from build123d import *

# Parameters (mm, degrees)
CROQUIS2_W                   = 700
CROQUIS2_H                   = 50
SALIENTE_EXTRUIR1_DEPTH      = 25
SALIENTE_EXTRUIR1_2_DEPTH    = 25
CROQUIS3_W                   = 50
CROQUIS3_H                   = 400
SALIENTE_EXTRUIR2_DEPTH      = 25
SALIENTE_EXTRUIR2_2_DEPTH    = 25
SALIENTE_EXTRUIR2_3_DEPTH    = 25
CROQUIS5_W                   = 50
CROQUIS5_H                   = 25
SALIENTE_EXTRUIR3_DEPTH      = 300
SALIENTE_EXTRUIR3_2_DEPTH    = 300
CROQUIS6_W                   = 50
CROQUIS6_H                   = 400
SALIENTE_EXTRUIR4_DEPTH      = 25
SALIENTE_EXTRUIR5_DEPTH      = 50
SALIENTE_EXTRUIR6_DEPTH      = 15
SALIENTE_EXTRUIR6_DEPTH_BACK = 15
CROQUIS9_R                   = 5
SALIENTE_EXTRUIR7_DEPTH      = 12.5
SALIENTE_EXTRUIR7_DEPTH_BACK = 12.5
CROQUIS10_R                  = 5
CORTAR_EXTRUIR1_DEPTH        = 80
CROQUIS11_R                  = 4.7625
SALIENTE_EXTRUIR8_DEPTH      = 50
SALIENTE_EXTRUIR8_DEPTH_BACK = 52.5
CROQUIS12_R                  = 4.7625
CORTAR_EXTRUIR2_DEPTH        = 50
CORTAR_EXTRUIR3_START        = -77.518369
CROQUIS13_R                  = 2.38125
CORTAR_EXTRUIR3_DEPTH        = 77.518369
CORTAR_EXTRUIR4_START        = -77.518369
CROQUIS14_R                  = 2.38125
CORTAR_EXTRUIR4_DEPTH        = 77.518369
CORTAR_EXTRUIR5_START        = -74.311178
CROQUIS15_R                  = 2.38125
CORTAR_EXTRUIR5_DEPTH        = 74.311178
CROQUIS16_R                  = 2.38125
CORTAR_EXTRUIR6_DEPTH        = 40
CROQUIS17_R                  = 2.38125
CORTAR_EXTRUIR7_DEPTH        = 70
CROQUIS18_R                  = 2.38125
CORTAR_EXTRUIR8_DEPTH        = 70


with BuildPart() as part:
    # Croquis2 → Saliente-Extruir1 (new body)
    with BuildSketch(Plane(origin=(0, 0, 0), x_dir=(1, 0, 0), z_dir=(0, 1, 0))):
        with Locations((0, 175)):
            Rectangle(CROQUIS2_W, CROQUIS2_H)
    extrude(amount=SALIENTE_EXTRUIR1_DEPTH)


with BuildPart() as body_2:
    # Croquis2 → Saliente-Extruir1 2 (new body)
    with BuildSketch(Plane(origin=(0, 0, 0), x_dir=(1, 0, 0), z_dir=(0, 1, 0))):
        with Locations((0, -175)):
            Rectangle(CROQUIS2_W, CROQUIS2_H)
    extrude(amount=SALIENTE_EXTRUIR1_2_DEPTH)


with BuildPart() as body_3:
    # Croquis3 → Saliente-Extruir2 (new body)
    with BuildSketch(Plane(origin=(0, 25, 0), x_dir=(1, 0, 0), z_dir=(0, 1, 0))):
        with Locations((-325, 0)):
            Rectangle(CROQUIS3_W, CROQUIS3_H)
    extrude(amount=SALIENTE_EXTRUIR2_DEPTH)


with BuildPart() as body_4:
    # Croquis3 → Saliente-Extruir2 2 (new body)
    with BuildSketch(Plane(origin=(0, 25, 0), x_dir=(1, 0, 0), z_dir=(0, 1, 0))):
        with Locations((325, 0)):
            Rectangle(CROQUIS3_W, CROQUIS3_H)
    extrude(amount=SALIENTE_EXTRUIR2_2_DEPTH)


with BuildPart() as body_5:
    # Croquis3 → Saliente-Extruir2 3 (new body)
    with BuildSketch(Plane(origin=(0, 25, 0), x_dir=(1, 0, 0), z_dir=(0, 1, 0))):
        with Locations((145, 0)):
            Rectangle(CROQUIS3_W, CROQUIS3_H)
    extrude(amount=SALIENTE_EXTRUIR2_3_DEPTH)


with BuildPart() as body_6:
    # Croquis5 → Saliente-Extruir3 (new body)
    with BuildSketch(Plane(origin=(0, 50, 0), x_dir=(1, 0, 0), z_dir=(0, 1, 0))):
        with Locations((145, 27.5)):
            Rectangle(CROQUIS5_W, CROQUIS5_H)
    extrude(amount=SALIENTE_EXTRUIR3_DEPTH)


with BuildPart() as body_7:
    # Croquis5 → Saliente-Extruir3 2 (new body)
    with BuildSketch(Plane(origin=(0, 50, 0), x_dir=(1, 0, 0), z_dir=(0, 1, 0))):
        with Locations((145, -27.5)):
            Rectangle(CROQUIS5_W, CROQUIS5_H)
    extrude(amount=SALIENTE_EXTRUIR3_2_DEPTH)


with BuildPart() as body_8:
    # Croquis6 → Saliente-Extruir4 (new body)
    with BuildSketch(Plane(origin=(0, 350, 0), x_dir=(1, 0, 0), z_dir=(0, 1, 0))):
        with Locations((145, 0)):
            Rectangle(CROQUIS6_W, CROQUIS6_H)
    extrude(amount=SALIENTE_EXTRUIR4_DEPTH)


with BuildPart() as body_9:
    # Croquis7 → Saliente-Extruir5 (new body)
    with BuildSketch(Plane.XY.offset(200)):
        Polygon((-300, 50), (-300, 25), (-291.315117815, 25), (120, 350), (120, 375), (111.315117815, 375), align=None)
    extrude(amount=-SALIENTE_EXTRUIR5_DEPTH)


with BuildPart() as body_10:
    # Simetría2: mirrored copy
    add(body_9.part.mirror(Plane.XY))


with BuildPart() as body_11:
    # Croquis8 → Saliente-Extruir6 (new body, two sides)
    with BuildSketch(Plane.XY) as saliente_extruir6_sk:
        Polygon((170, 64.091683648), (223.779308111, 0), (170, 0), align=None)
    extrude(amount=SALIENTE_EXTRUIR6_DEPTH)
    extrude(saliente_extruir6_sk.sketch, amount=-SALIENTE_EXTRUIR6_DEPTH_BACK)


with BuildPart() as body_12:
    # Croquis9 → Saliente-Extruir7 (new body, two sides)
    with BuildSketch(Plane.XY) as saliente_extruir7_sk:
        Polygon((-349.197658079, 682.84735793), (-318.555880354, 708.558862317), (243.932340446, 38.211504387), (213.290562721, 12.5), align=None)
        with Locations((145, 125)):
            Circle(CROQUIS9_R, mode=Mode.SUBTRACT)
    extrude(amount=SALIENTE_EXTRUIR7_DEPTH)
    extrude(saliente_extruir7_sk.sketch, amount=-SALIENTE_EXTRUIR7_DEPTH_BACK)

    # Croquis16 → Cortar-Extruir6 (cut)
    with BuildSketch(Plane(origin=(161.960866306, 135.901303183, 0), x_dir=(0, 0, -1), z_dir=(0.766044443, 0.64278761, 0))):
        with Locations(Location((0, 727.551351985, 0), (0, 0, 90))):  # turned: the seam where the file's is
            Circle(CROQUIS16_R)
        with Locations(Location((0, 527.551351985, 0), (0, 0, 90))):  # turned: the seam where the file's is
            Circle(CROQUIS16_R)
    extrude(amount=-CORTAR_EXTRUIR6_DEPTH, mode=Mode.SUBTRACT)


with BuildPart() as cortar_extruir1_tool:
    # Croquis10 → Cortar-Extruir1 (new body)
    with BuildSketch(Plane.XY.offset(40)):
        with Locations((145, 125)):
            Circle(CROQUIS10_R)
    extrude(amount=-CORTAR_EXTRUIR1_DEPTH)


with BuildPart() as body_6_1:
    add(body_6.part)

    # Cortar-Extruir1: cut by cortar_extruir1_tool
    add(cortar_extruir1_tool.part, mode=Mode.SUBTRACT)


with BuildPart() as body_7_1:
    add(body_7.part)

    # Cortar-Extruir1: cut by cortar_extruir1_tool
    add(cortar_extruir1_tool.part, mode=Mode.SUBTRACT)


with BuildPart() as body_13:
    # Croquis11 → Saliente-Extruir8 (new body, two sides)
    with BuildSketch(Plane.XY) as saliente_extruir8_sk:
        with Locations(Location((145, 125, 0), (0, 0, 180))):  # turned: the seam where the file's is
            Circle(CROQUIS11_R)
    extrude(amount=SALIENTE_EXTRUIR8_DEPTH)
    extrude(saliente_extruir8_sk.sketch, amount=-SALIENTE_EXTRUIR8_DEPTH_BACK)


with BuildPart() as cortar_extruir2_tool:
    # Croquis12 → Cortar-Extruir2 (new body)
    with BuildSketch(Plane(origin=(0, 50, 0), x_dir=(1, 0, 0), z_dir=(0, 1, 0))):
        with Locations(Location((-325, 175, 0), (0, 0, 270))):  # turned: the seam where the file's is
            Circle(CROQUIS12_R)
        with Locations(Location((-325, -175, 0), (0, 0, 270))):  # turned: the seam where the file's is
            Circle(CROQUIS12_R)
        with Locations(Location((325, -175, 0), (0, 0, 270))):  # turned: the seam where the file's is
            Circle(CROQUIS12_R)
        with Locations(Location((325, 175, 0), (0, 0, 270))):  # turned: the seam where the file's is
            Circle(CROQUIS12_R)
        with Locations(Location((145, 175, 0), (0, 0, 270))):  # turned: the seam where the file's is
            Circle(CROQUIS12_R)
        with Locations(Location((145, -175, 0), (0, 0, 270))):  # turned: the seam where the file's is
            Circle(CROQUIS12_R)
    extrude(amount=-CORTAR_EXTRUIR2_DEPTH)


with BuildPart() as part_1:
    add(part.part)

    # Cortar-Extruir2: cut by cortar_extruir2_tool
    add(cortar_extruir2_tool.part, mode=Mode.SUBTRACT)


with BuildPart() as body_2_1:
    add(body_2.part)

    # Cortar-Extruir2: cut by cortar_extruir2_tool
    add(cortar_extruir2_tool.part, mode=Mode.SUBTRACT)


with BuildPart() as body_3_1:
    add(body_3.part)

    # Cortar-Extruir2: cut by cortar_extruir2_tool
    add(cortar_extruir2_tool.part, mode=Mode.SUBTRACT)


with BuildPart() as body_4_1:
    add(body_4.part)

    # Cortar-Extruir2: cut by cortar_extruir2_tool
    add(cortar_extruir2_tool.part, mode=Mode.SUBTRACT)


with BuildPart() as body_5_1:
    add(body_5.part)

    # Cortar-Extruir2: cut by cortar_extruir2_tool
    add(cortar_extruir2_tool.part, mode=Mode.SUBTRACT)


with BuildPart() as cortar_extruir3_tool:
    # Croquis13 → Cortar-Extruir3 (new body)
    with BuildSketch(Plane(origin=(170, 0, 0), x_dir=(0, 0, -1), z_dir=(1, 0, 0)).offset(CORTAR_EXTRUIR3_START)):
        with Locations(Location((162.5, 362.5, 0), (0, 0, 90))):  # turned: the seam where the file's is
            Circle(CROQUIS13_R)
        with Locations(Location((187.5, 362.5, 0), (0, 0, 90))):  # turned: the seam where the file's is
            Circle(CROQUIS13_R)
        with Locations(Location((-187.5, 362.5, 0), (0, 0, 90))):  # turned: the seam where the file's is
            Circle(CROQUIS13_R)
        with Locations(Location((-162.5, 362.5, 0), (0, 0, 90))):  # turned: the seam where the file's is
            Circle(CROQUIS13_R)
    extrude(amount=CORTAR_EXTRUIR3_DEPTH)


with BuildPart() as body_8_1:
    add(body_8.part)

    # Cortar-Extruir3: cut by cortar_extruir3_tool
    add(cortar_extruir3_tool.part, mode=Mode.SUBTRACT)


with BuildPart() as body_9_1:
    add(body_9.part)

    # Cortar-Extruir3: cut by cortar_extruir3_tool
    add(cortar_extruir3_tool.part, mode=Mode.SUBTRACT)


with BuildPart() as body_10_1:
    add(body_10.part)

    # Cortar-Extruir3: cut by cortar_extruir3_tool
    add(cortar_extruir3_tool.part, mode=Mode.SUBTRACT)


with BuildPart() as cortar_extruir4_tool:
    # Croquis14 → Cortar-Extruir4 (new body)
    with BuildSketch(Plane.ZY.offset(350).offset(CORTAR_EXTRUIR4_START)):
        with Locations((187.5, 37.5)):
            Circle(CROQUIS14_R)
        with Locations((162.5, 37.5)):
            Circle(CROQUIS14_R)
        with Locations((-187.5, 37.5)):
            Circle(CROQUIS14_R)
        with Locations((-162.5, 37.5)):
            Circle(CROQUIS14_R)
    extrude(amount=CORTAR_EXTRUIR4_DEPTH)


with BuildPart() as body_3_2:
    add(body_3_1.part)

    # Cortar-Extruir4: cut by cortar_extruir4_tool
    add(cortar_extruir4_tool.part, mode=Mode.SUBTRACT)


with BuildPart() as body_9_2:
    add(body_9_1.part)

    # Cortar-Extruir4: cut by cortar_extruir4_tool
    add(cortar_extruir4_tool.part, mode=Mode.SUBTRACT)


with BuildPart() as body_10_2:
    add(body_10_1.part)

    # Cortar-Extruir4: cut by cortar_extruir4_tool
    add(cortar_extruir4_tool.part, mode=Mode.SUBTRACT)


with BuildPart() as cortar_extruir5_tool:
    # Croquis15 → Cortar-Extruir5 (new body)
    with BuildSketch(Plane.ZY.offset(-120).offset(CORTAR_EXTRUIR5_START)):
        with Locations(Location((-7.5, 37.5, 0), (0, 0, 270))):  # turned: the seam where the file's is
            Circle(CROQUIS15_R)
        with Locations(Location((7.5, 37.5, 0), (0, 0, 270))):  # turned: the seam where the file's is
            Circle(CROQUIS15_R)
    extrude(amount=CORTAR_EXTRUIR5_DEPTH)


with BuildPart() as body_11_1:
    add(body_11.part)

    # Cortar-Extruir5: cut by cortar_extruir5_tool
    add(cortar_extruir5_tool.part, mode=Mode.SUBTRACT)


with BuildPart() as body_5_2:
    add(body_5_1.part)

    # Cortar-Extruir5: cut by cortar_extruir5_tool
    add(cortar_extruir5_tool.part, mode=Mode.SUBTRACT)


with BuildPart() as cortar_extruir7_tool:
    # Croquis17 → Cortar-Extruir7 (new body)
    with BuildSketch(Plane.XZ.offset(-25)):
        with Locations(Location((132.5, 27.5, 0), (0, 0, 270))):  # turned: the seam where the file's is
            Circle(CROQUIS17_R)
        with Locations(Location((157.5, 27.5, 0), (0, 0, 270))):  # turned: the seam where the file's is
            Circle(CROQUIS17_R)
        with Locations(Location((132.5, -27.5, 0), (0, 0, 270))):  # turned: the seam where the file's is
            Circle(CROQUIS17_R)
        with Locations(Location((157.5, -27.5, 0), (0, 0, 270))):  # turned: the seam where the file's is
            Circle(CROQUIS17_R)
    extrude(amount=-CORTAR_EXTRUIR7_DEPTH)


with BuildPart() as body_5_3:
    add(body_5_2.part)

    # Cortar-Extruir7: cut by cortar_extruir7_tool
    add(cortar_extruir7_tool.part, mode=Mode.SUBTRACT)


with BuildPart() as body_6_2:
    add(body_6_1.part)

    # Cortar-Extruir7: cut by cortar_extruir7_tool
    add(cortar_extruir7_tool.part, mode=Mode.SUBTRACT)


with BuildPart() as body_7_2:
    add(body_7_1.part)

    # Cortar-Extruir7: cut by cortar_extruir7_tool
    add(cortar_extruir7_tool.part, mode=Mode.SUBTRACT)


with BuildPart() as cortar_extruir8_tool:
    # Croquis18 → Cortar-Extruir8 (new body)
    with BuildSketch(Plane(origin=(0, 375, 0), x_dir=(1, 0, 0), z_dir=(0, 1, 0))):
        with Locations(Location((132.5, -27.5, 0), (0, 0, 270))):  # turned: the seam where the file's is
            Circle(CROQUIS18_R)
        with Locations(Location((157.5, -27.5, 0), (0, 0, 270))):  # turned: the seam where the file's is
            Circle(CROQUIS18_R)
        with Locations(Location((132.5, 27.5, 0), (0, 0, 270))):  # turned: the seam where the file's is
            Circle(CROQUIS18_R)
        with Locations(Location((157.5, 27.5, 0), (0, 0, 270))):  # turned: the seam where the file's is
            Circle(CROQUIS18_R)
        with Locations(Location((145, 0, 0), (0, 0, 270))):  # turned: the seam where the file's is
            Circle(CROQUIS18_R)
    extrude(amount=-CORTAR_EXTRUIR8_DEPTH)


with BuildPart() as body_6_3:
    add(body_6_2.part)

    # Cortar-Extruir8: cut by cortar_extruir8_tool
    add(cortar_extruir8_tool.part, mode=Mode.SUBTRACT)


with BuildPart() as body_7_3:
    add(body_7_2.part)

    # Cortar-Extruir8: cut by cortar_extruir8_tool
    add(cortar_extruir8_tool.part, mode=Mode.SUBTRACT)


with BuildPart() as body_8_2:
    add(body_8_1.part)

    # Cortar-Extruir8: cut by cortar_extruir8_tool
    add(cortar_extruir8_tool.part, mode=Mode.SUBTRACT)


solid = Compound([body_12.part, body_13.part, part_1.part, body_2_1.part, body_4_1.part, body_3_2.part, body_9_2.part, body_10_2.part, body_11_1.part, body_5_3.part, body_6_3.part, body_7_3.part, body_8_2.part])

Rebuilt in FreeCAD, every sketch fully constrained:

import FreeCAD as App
import Part
import Sketcher

V = App.Vector
Q = App.Units.Quantity

doc = App.newDocument("Part")
body = doc.addObject("PartDesign::Body", "Body")

sketch1 = body.newObject("Sketcher::SketchObject", "Sketch")
sketch1.AttachmentSupport = (doc.getObject("XZ_Plane"), [""])
sketch1.MapMode = "FlatFace"
sketch1.addGeometry([
    Part.LineSegment(V(-350, -200, 0), V(-350, -150, 0)),
    Part.LineSegment(V(-350, -150, 0), V(350, -150, 0)),
    Part.LineSegment(V(350, -150, 0), V(350, -200, 0)),
    Part.LineSegment(V(350, -200, 0), V(-350, -200, 0)),
], False)
sketch1.addConstraint([
    Sketcher.Constraint("Coincident", 0, 2, 1, 1),
    Sketcher.Constraint("Coincident", 1, 2, 2, 1),
    Sketcher.Constraint("Coincident", 2, 2, 3, 1),
    Sketcher.Constraint("Coincident", 3, 2, 0, 1),
    Sketcher.Constraint("Vertical", 0),
    Sketcher.Constraint("Horizontal", 1),
    Sketcher.Constraint("Vertical", 2),
    Sketcher.Constraint("Horizontal", 3),
    Sketcher.Constraint("DistanceX", 1, 1, 1, 2, 700.0),
    Sketcher.Constraint("DistanceY", 0, 1, 0, 2, 50.0),
    Sketcher.Constraint("DistanceX", 0, 2, -1, 1, 350.0),
    Sketcher.Constraint("DistanceY", 0, 2, -1, 1, 150.0),
])
pad1 = body.newObject("PartDesign::Pad", "Pad")
pad1.Profile = sketch1
pad1.Length = 25
pad1.Reversed = True
body2 = doc.addObject("PartDesign::Body", "Body001")

sketch2 = body2.newObject("Sketcher::SketchObject", "Sketch001")
sketch2.AttachmentSupport = (doc.getObject("XZ_Plane001"), [""])
sketch2.MapMode = "FlatFace"
sketch2.addGeometry([
    Part.LineSegment(V(-350, 150, 0), V(-350, 200, 0)),
    Part.LineSegment(V(-350, 200, 0), V(350, 200, 0)),
    Part.LineSegment(V(350, 200, 0), V(350, 150, 0)),
    Part.LineSegment(V(350, 150, 0), V(-350, 150, 0)),
], False)
sketch2.addConstraint([
    Sketcher.Constraint("Coincident", 0, 2, 1, 1),
    Sketcher.Constraint("Coincident", 1, 2, 2, 1),
    Sketcher.Constraint("Coincident", 2, 2, 3, 1),
    Sketcher.Constraint("Coincident", 3, 2, 0, 1),
    Sketcher.Constraint("Vertical", 0),
    Sketcher.Constraint("Horizontal", 1),
    Sketcher.Constraint("Vertical", 2),
    Sketcher.Constraint("Horizontal", 3),
    Sketcher.Constraint("DistanceX", 1, 1, 1, 2, 700.0),
    Sketcher.Constraint("DistanceY", 0, 1, 0, 2, 50.0),
    Sketcher.Constraint("DistanceX", 0, 2, -1, 1, 350.0),
    Sketcher.Constraint("DistanceY", -1, 1, 0, 2, 200.0),
])
pad2 = body2.newObject("PartDesign::Pad", "Pad001")
pad2.Profile = sketch2
pad2.Length = 25
pad2.Reversed = True
body3 = doc.addObject("PartDesign::Body", "Body002")

sketch3 = body3.newObject("Sketcher::SketchObject", "Sketch002")
sketch3.AttachmentSupport = (doc.getObject("XZ_Plane002"), [""])
sketch3.MapMode = "FlatFace"
sketch3.AttachmentOffset = App.Placement(V(0, 0, -25), App.Rotation())
sketch3.addGeometry([
    Part.LineSegment(V(-350, -200, 0), V(-350, 200, 0)),
    Part.LineSegment(V(-350, 200, 0), V(-300, 200, 0)),
    Part.LineSegment(V(-300, 200, 0), V(-300, -200, 0)),
    Part.LineSegment(V(-300, -200, 0), V(-350, -200, 0)),
], False)
sketch3.addConstraint([
    Sketcher.Constraint("Coincident", 0, 2, 1, 1),
    Sketcher.Constraint("Coincident", 1, 2, 2, 1),
    Sketcher.Constraint("Coincident", 2, 2, 3, 1),
    Sketcher.Constraint("Coincident", 3, 2, 0, 1),
    Sketcher.Constraint("Vertical", 0),
    Sketcher.Constraint("Horizontal", 1),
    Sketcher.Constraint("Vertical", 2),
    Sketcher.Constraint("Horizontal", 3),
    Sketcher.Constraint("DistanceX", 1, 1, 1, 2, 50.0),
    Sketcher.Constraint("DistanceY", 0, 1, 0, 2, 400.0),
    Sketcher.Constraint("DistanceX", 0, 2, -1, 1, 350.0),
    Sketcher.Constraint("DistanceY", -1, 1, 0, 2, 200.0),
])
pad3 = body3.newObject("PartDesign::Pad", "Pad002")
pad3.Profile = sketch3
pad3.Length = 25
pad3.Reversed = True
body4 = doc.addObject("PartDesign::Body", "Body003")

sketch4 = body4.newObject("Sketcher::SketchObject", "Sketch003")
sketch4.AttachmentSupport = (doc.getObject("XZ_Plane003"), [""])
sketch4.MapMode = "FlatFace"
sketch4.AttachmentOffset = App.Placement(V(0, 0, -25), App.Rotation())
sketch4.addGeometry([
    Part.LineSegment(V(300, -200, 0), V(300, 200, 0)),
    Part.LineSegment(V(300, 200, 0), V(350, 200, 0)),
    Part.LineSegment(V(350, 200, 0), V(350, -200, 0)),
    Part.LineSegment(V(350, -200, 0), V(300, -200, 0)),
], False)
sketch4.addConstraint([
    Sketcher.Constraint("Coincident", 0, 2, 1, 1),
    Sketcher.Constraint("Coincident", 1, 2, 2, 1),
    Sketcher.Constraint("Coincident", 2, 2, 3, 1),
    Sketcher.Constraint("Coincident", 3, 2, 0, 1),
    Sketcher.Constraint("Vertical", 0),
    Sketcher.Constraint("Horizontal", 1),
    Sketcher.Constraint("Vertical", 2),
    Sketcher.Constraint("Horizontal", 3),
    Sketcher.Constraint("DistanceX", 1, 1, 1, 2, 50.0),
    Sketcher.Constraint("DistanceY", 0, 1, 0, 2, 400.0),
    Sketcher.Constraint("DistanceX", -1, 1, 0, 2, 300.0),
    Sketcher.Constraint("DistanceY", -1, 1, 0, 2, 200.0),
])
pad4 = body4.newObject("PartDesign::Pad", "Pad003")
pad4.Profile = sketch4
pad4.Length = 25
pad4.Reversed = True
body5 = doc.addObject("PartDesign::Body", "Body004")

sketch5 = body5.newObject("Sketcher::SketchObject", "Sketch004")
sketch5.AttachmentSupport = (doc.getObject("XZ_Plane004"), [""])
sketch5.MapMode = "FlatFace"
sketch5.AttachmentOffset = App.Placement(V(0, 0, -25), App.Rotation())
sketch5.addGeometry([
    Part.LineSegment(V(120, -200, 0), V(120, 200, 0)),
    Part.LineSegment(V(120, 200, 0), V(170, 200, 0)),
    Part.LineSegment(V(170, 200, 0), V(170, -200, 0)),
    Part.LineSegment(V(170, -200, 0), V(120, -200, 0)),
], False)
sketch5.addConstraint([
    Sketcher.Constraint("Coincident", 0, 2, 1, 1),
    Sketcher.Constraint("Coincident", 1, 2, 2, 1),
    Sketcher.Constraint("Coincident", 2, 2, 3, 1),
    Sketcher.Constraint("Coincident", 3, 2, 0, 1),
    Sketcher.Constraint("Vertical", 0),
    Sketcher.Constraint("Horizontal", 1),
    Sketcher.Constraint("Vertical", 2),
    Sketcher.Constraint("Horizontal", 3),
    Sketcher.Constraint("DistanceX", 1, 1, 1, 2, 50.0),
    Sketcher.Constraint("DistanceY", 0, 1, 0, 2, 400.0),
    Sketcher.Constraint("DistanceX", -1, 1, 0, 2, 120.0),
    Sketcher.Constraint("DistanceY", -1, 1, 0, 2, 200.0),
])
pad5 = body5.newObject("PartDesign::Pad", "Pad004")
pad5.Profile = sketch5
pad5.Length = 25
pad5.Reversed = True
body6 = doc.addObject("PartDesign::Body", "Body005")

sketch6 = body6.newObject("Sketcher::SketchObject", "Sketch005")
sketch6.AttachmentSupport = (doc.getObject("XZ_Plane005"), [""])
sketch6.MapMode = "FlatFace"
sketch6.AttachmentOffset = App.Placement(V(0, 0, -50), App.Rotation())
sketch6.addGeometry([
    Part.LineSegment(V(120, -40, 0), V(120, -15, 0)),
    Part.LineSegment(V(120, -15, 0), V(170, -15, 0)),
    Part.LineSegment(V(170, -15, 0), V(170, -40, 0)),
    Part.LineSegment(V(170, -40, 0), V(120, -40, 0)),
], False)
sketch6.addConstraint([
    Sketcher.Constraint("Coincident", 0, 2, 1, 1),
    Sketcher.Constraint("Coincident", 1, 2, 2, 1),
    Sketcher.Constraint("Coincident", 2, 2, 3, 1),
    Sketcher.Constraint("Coincident", 3, 2, 0, 1),
    Sketcher.Constraint("Vertical", 0),
    Sketcher.Constraint("Horizontal", 1),
    Sketcher.Constraint("Vertical", 2),
    Sketcher.Constraint("Horizontal", 3),
    Sketcher.Constraint("DistanceX", 1, 1, 1, 2, 50.0),
    Sketcher.Constraint("DistanceY", 0, 1, 0, 2, 25.0),
    Sketcher.Constraint("DistanceX", -1, 1, 0, 2, 120.0),
    Sketcher.Constraint("DistanceY", 0, 2, -1, 1, 15.0),
])
pad6 = body6.newObject("PartDesign::Pad", "Pad005")
pad6.Profile = sketch6
pad6.Length = 300
pad6.Reversed = True
body7 = doc.addObject("PartDesign::Body", "Body006")

sketch7 = body7.newObject("Sketcher::SketchObject", "Sketch006")
sketch7.AttachmentSupport = (doc.getObject("XZ_Plane006"), [""])
sketch7.MapMode = "FlatFace"
sketch7.AttachmentOffset = App.Placement(V(0, 0, -50), App.Rotation())
sketch7.addGeometry([
    Part.LineSegment(V(120, 15, 0), V(120, 40, 0)),
    Part.LineSegment(V(120, 40, 0), V(170, 40, 0)),
    Part.LineSegment(V(170, 40, 0), V(170, 15, 0)),
    Part.LineSegment(V(170, 15, 0), V(120, 15, 0)),
], False)
sketch7.addConstraint([
    Sketcher.Constraint("Coincident", 0, 2, 1, 1),
    Sketcher.Constraint("Coincident", 1, 2, 2, 1),
    Sketcher.Constraint("Coincident", 2, 2, 3, 1),
    Sketcher.Constraint("Coincident", 3, 2, 0, 1),
    Sketcher.Constraint("Vertical", 0),
    Sketcher.Constraint("Horizontal", 1),
    Sketcher.Constraint("Vertical", 2),
    Sketcher.Constraint("Horizontal", 3),
    Sketcher.Constraint("DistanceX", 1, 1, 1, 2, 50.0),
    Sketcher.Constraint("DistanceY", 0, 1, 0, 2, 25.0),
    Sketcher.Constraint("DistanceX", -1, 1, 0, 2, 120.0),
    Sketcher.Constraint("DistanceY", -1, 1, 0, 2, 40.0),
])
pad7 = body7.newObject("PartDesign::Pad", "Pad006")
pad7.Profile = sketch7
pad7.Length = 300
pad7.Reversed = True
body8 = doc.addObject("PartDesign::Body", "Body007")

sketch8 = body8.newObject("Sketcher::SketchObject", "Sketch007")
sketch8.AttachmentSupport = (doc.getObject("XZ_Plane007"), [""])
sketch8.MapMode = "FlatFace"
sketch8.AttachmentOffset = App.Placement(V(0, 0, -350), App.Rotation())
sketch8.addGeometry([
    Part.LineSegment(V(120, -200, 0), V(120, 200, 0)),
    Part.LineSegment(V(120, 200, 0), V(170, 200, 0)),
    Part.LineSegment(V(170, 200, 0), V(170, -200, 0)),
    Part.LineSegment(V(170, -200, 0), V(120, -200, 0)),
], False)
sketch8.addConstraint([
    Sketcher.Constraint("Coincident", 0, 2, 1, 1),
    Sketcher.Constraint("Coincident", 1, 2, 2, 1),
    Sketcher.Constraint("Coincident", 2, 2, 3, 1),
    Sketcher.Constraint("Coincident", 3, 2, 0, 1),
    Sketcher.Constraint("Vertical", 0),
    Sketcher.Constraint("Horizontal", 1),
    Sketcher.Constraint("Vertical", 2),
    Sketcher.Constraint("Horizontal", 3),
    Sketcher.Constraint("DistanceX", 1, 1, 1, 2, 50.0),
    Sketcher.Constraint("DistanceY", 0, 1, 0, 2, 400.0),
    Sketcher.Constraint("DistanceX", -1, 1, 0, 2, 120.0),
    Sketcher.Constraint("DistanceY", -1, 1, 0, 2, 200.0),
])
pad8 = body8.newObject("PartDesign::Pad", "Pad007")
pad8.Profile = sketch8
pad8.Length = 25
pad8.Reversed = True
body9 = doc.addObject("PartDesign::Body", "Body008")

sketch9 = body9.newObject("Sketcher::SketchObject", "Sketch008")
sketch9.AttachmentSupport = (doc.getObject("XY_Plane008"), [""])
sketch9.MapMode = "FlatFace"
sketch9.AttachmentOffset = App.Placement(V(0, 0, 200), App.Rotation())
sketch9.addGeometry([
    Part.LineSegment(V(-300, 50, 0), V(-300, 25, 0)),
    Part.LineSegment(V(-300, 25, 0), V(-291, 25, 0)),
    Part.LineSegment(V(-291, 25, 0), V(120, 350, 0)),
    Part.LineSegment(V(120, 350, 0), V(120, 375, 0)),
    Part.LineSegment(V(120, 375, 0), V(111, 375, 0)),
    Part.LineSegment(V(111, 375, 0), V(-300, 50, 0)),
], False)
sketch9.addConstraint([
    Sketcher.Constraint("Coincident", 0, 2, 1, 1),
    Sketcher.Constraint("Coincident", 1, 2, 2, 1),
    Sketcher.Constraint("Coincident", 2, 2, 3, 1),
    Sketcher.Constraint("Coincident", 3, 2, 4, 1),
    Sketcher.Constraint("Coincident", 4, 2, 5, 1),
    Sketcher.Constraint("Coincident", 5, 2, 0, 1),
    Sketcher.Constraint("Vertical", 0),
    Sketcher.Constraint("Horizontal", 1),
    Sketcher.Constraint("Vertical", 3),
    Sketcher.Constraint("Horizontal", 4),
    Sketcher.Constraint("Parallel", 2, 5),
    Sketcher.Constraint("Equal", 1, 4),
    Sketcher.Constraint("DistanceY", 0, 2, 0, 1, 25.0),
    Sketcher.Constraint("DistanceX", 0, 2, -1, 1, 300.0),
    Sketcher.Constraint("DistanceY", -1, 1, 0, 2, 25.0),
    Sketcher.Constraint("DistanceX", -1, 1, 2, 2, 120.0),
    Sketcher.Constraint("DistanceY", -1, 1, 2, 2, 350.0),
    Sketcher.Constraint("DistanceX", 1, 1, 1, 2, 8.684882),
])
pad9 = body9.newObject("PartDesign::Pad", "Pad008")
pad9.Profile = sketch9
pad9.Length = 50
pad9.Reversed = True
body10 = doc.addObject("PartDesign::Body", "Body009")
doc.recompute()

mirroring = doc.addObject("Part::Mirroring", "Mirroring")
mirroring.Source = body9
mirroring.Base = V(0, 0, 0)
mirroring.Normal = V(0, 0, 1)
body10.BaseFeature = mirroring
doc.recompute()
body11 = doc.addObject("PartDesign::Body", "Body010")

sketch10 = body11.newObject("Sketcher::SketchObject", "Sketch009")
sketch10.AttachmentSupport = (doc.getObject("XY_Plane010"), [""])
sketch10.MapMode = "FlatFace"
sketch10.addGeometry([
    Part.LineSegment(V(224, 0, 0), V(170, 64, 0)),
    Part.LineSegment(V(170, 64, 0), V(170, 0, 0)),
    Part.LineSegment(V(170, 0, 0), V(224, 0, 0)),
], False)
sketch10.addConstraint([
    Sketcher.Constraint("Coincident", 0, 2, 1, 1),
    Sketcher.Constraint("Coincident", 1, 2, 2, 1),
    Sketcher.Constraint("Coincident", 2, 2, 0, 1),
    Sketcher.Constraint("Vertical", 1),
    Sketcher.Constraint("Horizontal", 2),
    Sketcher.Constraint("PointOnObject", 1, 2, -1),
    Sketcher.Constraint("Angle", 0, Q("130 deg")),
    Sketcher.Constraint("DistanceX", -1, 1, 0, 2, 170.0),
    Sketcher.Constraint("DistanceX", 2, 1, 2, 2, 53.779308),
])
pad10 = body11.newObject("PartDesign::Pad", "Pad009")
pad10.Profile = sketch10
pad10.Type = "TwoLengths"
pad10.Length = 15
pad10.Length2 = 15
body12 = doc.addObject("PartDesign::Body", "Body011")

sketch11 = body12.newObject("Sketcher::SketchObject", "Sketch010")
sketch11.AttachmentSupport = (doc.getObject("XY_Plane011"), [""])
sketch11.MapMode = "FlatFace"
sketch11.addGeometry([
    Part.LineSegment(V(-319, 709, 0), V(-349, 683, 0)),
    Part.LineSegment(V(-349, 683, 0), V(213, 12, 0)),
    Part.LineSegment(V(213, 12, 0), V(244, 38, 0)),
    Part.LineSegment(V(244, 38, 0), V(-319, 709, 0)),
    Part.Circle(V(145, 125, 0), V(0, 0, 1), 5),
], False)
sketch11.addConstraint([
    Sketcher.Constraint("Coincident", 0, 2, 1, 1),
    Sketcher.Constraint("Coincident", 1, 2, 2, 1),
    Sketcher.Constraint("Coincident", 2, 2, 3, 1),
    Sketcher.Constraint("Coincident", 3, 2, 0, 1),
    Sketcher.Constraint("Perpendicular", 0, 1),
    Sketcher.Constraint("Perpendicular", 1, 2),
    Sketcher.Constraint("Perpendicular", 2, 3),
    Sketcher.Constraint("Diameter", 4, 10.0),
    Sketcher.Constraint("Angle", 0, Q("-140 deg")),
    Sketcher.Constraint("Distance", 0, 40.0),
    Sketcher.Constraint("DistanceX", -1, 1, 4, 3, 145.0),
    Sketcher.Constraint("DistanceY", -1, 1, 4, 3, 125.0),
    Sketcher.Constraint("DistanceY", -1, 1, 1, 2, 12.5),
    Sketcher.Constraint("DistanceX", 0, 2, 2, 2, 593.129999),
    Sketcher.Constraint("DistanceX", 0, 2, -1, 1, 349.197658),
])
pad11 = body12.newObject("PartDesign::Pad", "Pad010")
pad11.Profile = sketch11
pad11.Type = "TwoLengths"
pad11.Length = 12.5
pad11.Length2 = 12.5

sketch12 = body12.newObject("Sketcher::SketchObject", "Sketch011")
sketch12.Placement = App.Placement(V(161.960866, 135.901303, 0), App.Rotation(V(0, 0, -1), V(-0.64278761, 0.766044443, 0), V(0.766044443, 0.64278761, 0), "ZXY"))
sketch12.addGeometry([
    Part.Circle(V(0, 727.6, 0), V(0, 0, 1), 2.4),
    Part.Circle(V(0, 527.6, 0), V(0, 0, 1), 2.4),
], False)
sketch12.addConstraint([
    Sketcher.Constraint("Equal", 0, 1),
    Sketcher.Constraint("PointOnObject", 0, 3, -2),
    Sketcher.Constraint("PointOnObject", 1, 3, -2),
    Sketcher.Constraint("DistanceY", 1, 3, 0, 3, 200.0),
    Sketcher.Constraint("Diameter", 0, 4.7625),
    Sketcher.Constraint("DistanceY", -1, 1, 0, 3, 727.551352),
])
pocket1 = body12.newObject("PartDesign::Pocket", "Pocket")
pocket1.Profile = sketch12
pocket1.Length = 40
body13 = doc.addObject("PartDesign::Body", "Body012")

sketch13 = body13.newObject("Sketcher::SketchObject", "Sketch012")
sketch13.AttachmentSupport = (doc.getObject("XY_Plane012"), [""])
sketch13.MapMode = "FlatFace"
sketch13.AttachmentOffset = App.Placement(V(0, 0, 40), App.Rotation())
sketch13.addGeometry(Part.Circle(V(145, 125, 0), V(0, 0, 1), 5), False)
sketch13.addConstraint([
    Sketcher.Constraint("Diameter", 0, 10.0),
    Sketcher.Constraint("DistanceX", -1, 1, 0, 3, 145.0),
    Sketcher.Constraint("DistanceY", -1, 1, 0, 3, 125.0),
])
pad12 = body13.newObject("PartDesign::Pad", "Pad011")
pad12.Profile = sketch13
pad12.Length = 80
pad12.Reversed = True
doc.recompute()

body14 = doc.addObject("PartDesign::Body", "Body013")
body14.BaseFeature = body13
boolean = body6.newObject("PartDesign::Boolean", "Boolean")
boolean.Type = "Cut"
boolean.addObjects([body14])
doc.recompute()

boolean2 = body7.newObject("PartDesign::Boolean", "Boolean001")
boolean2.Type = "Cut"
boolean2.addObjects([body13])
body15 = doc.addObject("PartDesign::Body", "Body014")

sketch14 = body15.newObject("Sketcher::SketchObject", "Sketch013")
sketch14.AttachmentSupport = (doc.getObject("XY_Plane014"), [""])
sketch14.MapMode = "FlatFace"
sketch14.addGeometry(Part.Circle(V(145, 125, 0), V(0, 0, 1), 4.8), False)
sketch14.addConstraint([
    Sketcher.Constraint("Diameter", 0, 9.525),
    Sketcher.Constraint("DistanceX", -1, 1, 0, 3, 145.0),
    Sketcher.Constraint("DistanceY", -1, 1, 0, 3, 125.0),
])
pad13 = body15.newObject("PartDesign::Pad", "Pad012")
pad13.Profile = sketch14
pad13.Type = "TwoLengths"
pad13.Length = 50
pad13.Length2 = 52.5
body16 = doc.addObject("PartDesign::Body", "Body015")
body16.AllowCompound = True

sketch15 = body16.newObject("Sketcher::SketchObject", "Sketch014")
sketch15.AttachmentSupport = (doc.getObject("XZ_Plane015"), [""])
sketch15.MapMode = "FlatFace"
sketch15.AttachmentOffset = App.Placement(V(0, 0, -50), App.Rotation())
sketch15.addGeometry([
    Part.Circle(V(-325, -175, 0), V(0, 0, 1), 4.8),
    Part.Circle(V(-325, 175, 0), V(0, 0, 1), 4.8),
    Part.Circle(V(325, 175, 0), V(0, 0, 1), 4.8),
    Part.Circle(V(325, -175, 0), V(0, 0, 1), 4.8),
    Part.Circle(V(145, -175, 0), V(0, 0, 1), 4.8),
    Part.Circle(V(145, 175, 0), V(0, 0, 1), 4.8),
], False)
sketch15.addConstraint([
    Sketcher.Constraint("Equal", 0, 1),
    Sketcher.Constraint("Equal", 1, 2),
    Sketcher.Constraint("Equal", 2, 3),
    Sketcher.Constraint("Equal", 3, 4),
    Sketcher.Constraint("Equal", 4, 5),
    Sketcher.Constraint("Symmetric", 0, 3, 2, 3, -1, 1),
    Sketcher.Constraint("Symmetric", 1, 3, 3, 3, -1, 1),
    Sketcher.Constraint("Symmetric", 1, 3, 2, 3, -2),
    Sketcher.Constraint("Symmetric", 4, 3, 5, 3, -1),
    Sketcher.Constraint("Horizontal", 3, 3, 4, 3),
    Sketcher.Constraint("Diameter", 0, 9.525),
    Sketcher.Constraint("DistanceX", 0, 3, -1, 1, 325.0),
    Sketcher.Constraint("DistanceY", 0, 3, -1, 1, 175.0),
    Sketcher.Constraint("DistanceX", -1, 1, 4, 3, 145.0),
])
pad14 = body16.newObject("PartDesign::Pad", "Pad013")
pad14.Profile = sketch15
pad14.Length = 50
doc.recompute()

body17 = doc.addObject("PartDesign::Body", "Body016")
body17.BaseFeature = body16
boolean3 = body.newObject("PartDesign::Boolean", "Boolean002")
boolean3.Type = "Cut"
boolean3.addObjects([body17])
doc.recompute()

body18 = doc.addObject("PartDesign::Body", "Body017")
body18.BaseFeature = body16
boolean4 = body2.newObject("PartDesign::Boolean", "Boolean003")
boolean4.Type = "Cut"
boolean4.addObjects([body18])
doc.recompute()

body19 = doc.addObject("PartDesign::Body", "Body018")
body19.BaseFeature = body16
boolean5 = body3.newObject("PartDesign::Boolean", "Boolean004")
boolean5.Type = "Cut"
boolean5.addObjects([body19])
doc.recompute()

body20 = doc.addObject("PartDesign::Body", "Body019")
body20.BaseFeature = body16
boolean6 = body4.newObject("PartDesign::Boolean", "Boolean005")
boolean6.Type = "Cut"
boolean6.addObjects([body20])
doc.recompute()

boolean7 = body5.newObject("PartDesign::Boolean", "Boolean006")
boolean7.Type = "Cut"
boolean7.addObjects([body16])
body21 = doc.addObject("PartDesign::Body", "Body020")
body21.AllowCompound = True

sketch16 = body21.newObject("Sketcher::SketchObject", "Sketch015")
sketch16.AttachmentSupport = (doc.getObject("YZ_Plane020"), [""])
sketch16.MapMode = "FlatFace"
sketch16.AttachmentOffset = App.Placement(V(0, 0, 92.481631), App.Rotation())
sketch16.addGeometry([
    Part.Circle(V(362.5, -162.5, 0), V(0, 0, 1), 2.4),
    Part.Circle(V(362.5, -187.5, 0), V(0, 0, 1), 2.4),
    Part.Circle(V(362.5, 187.5, 0), V(0, 0, 1), 2.4),
    Part.Circle(V(362.5, 162.5, 0), V(0, 0, 1), 2.4),
], False)
sketch16.addConstraint([
    Sketcher.Constraint("Equal", 0, 1),
    Sketcher.Constraint("Equal", 1, 2),
    Sketcher.Constraint("Equal", 2, 3),
    Sketcher.Constraint("Symmetric", 1, 3, 2, 3, -1),
    Sketcher.Constraint("Symmetric", 0, 3, 3, 3, -1),
    Sketcher.Constraint("Vertical", 0, 3, 1, 3),
    Sketcher.Constraint("DistanceY", 1, 3, 0, 3, 25.0),
    Sketcher.Constraint("DistanceY", 0, 3, 2, 3, 350.0),
    Sketcher.Constraint("Diameter", 0, 4.7625),
    Sketcher.Constraint("DistanceX", -1, 1, 0, 3, 362.5),
])
pad15 = body21.newObject("PartDesign::Pad", "Pad014")
pad15.Profile = sketch16
pad15.Length = 77.518369
doc.recompute()

body22 = doc.addObject("PartDesign::Body", "Body021")
body22.BaseFeature = body21
boolean8 = body8.newObject("PartDesign::Boolean", "Boolean007")
boolean8.Type = "Cut"
boolean8.addObjects([body22])
doc.recompute()

body23 = doc.addObject("PartDesign::Body", "Body022")
body23.BaseFeature = body21
boolean9 = body9.newObject("PartDesign::Boolean", "Boolean008")
boolean9.Type = "Cut"
boolean9.addObjects([body23])
doc.recompute()

boolean10 = body10.newObject("PartDesign::Boolean", "Boolean009")
boolean10.Type = "Cut"
boolean10.addObjects([body21])
body24 = doc.addObject("PartDesign::Body", "Body023")
body24.AllowCompound = True

sketch17 = body24.newObject("Sketcher::SketchObject", "Sketch016")
sketch17.AttachmentSupport = (doc.getObject("YZ_Plane023"), [""])
sketch17.MapMode = "FlatFace"
sketch17.AttachmentOffset = App.Placement(V(0, 0, -272.481631), App.Rotation())
sketch17.addGeometry([
    Part.Circle(V(37.5, 187.5, 0), V(0, 0, 1), 2.4),
    Part.Circle(V(37.5, 162.5, 0), V(0, 0, 1), 2.4),
    Part.Circle(V(37.5, -187.5, 0), V(0, 0, 1), 2.4),
    Part.Circle(V(37.5, -162.5, 0), V(0, 0, 1), 2.4),
], False)
sketch17.addConstraint([
    Sketcher.Constraint("Equal", 0, 1),
    Sketcher.Constraint("Equal", 1, 2),
    Sketcher.Constraint("Equal", 2, 3),
    Sketcher.Constraint("Symmetric", 0, 3, 2, 3, -1),
    Sketcher.Constraint("Symmetric", 1, 3, 3, 3, -1),
    Sketcher.Constraint("Vertical", 0, 3, 1, 3),
    Sketcher.Constraint("DistanceY", 1, 3, 0, 3, 25.0),
    Sketcher.Constraint("DistanceY", 2, 3, 1, 3, 350.0),
    Sketcher.Constraint("Diameter", 0, 4.7625),
    Sketcher.Constraint("DistanceX", -1, 1, 0, 3, 37.5),
])
pad16 = body24.newObject("PartDesign::Pad", "Pad015")
pad16.Profile = sketch17
pad16.Length = 77.518369
pad16.Reversed = True
doc.recompute()

body25 = doc.addObject("PartDesign::Body", "Body024")
body25.BaseFeature = body24
boolean11 = body3.newObject("PartDesign::Boolean", "Boolean010")
boolean11.Type = "Cut"
boolean11.addObjects([body25])
doc.recompute()

body26 = doc.addObject("PartDesign::Body", "Body025")
body26.BaseFeature = body24
boolean12 = body9.newObject("PartDesign::Boolean", "Boolean011")
boolean12.Type = "Cut"
boolean12.addObjects([body26])
doc.recompute()

boolean13 = body10.newObject("PartDesign::Boolean", "Boolean012")
boolean13.Type = "Cut"
boolean13.addObjects([body24])
body27 = doc.addObject("PartDesign::Body", "Body026")
body27.AllowCompound = True

sketch18 = body27.newObject("Sketcher::SketchObject", "Sketch017")
sketch18.AttachmentSupport = (doc.getObject("YZ_Plane026"), [""])
sketch18.MapMode = "FlatFace"
sketch18.AttachmentOffset = App.Placement(V(0, 0, 194.311178), App.Rotation())
sketch18.addGeometry([
    Part.Circle(V(37.5, -7.5, 0), V(0, 0, 1), 2.4),
    Part.Circle(V(37.5, 7.5, 0), V(0, 0, 1), 2.4),
], False)
sketch18.addConstraint([
    Sketcher.Constraint("Equal", 0, 1),
    Sketcher.Constraint("Symmetric", 0, 3, 1, 3, -1),
    Sketcher.Constraint("DistanceY", 0, 3, 1, 3, 15.0),
    Sketcher.Constraint("Diameter", 0, 4.7625),
    Sketcher.Constraint("DistanceX", -1, 1, 0, 3, 37.5),
])
pad17 = body27.newObject("PartDesign::Pad", "Pad016")
pad17.Profile = sketch18
pad17.Length = 74.311178
pad17.Reversed = True
doc.recompute()

body28 = doc.addObject("PartDesign::Body", "Body027")
body28.BaseFeature = body27
boolean14 = body11.newObject("PartDesign::Boolean", "Boolean013")
boolean14.Type = "Cut"
boolean14.addObjects([body28])
doc.recompute()

boolean15 = body5.newObject("PartDesign::Boolean", "Boolean014")
boolean15.Type = "Cut"
boolean15.addObjects([body27])
body29 = doc.addObject("PartDesign::Body", "Body028")
body29.AllowCompound = True

sketch19 = body29.newObject("Sketcher::SketchObject", "Sketch018")
sketch19.AttachmentSupport = (doc.getObject("XZ_Plane028"), [""])
sketch19.MapMode = "FlatFace"
sketch19.AttachmentOffset = App.Placement(V(0, 0, -25), App.Rotation())
sketch19.addGeometry([
    Part.Circle(V(132.5, 27.5, 0), V(0, 0, 1), 2.4),
    Part.Circle(V(157.5, 27.5, 0), V(0, 0, 1), 2.4),
    Part.Circle(V(132.5, -27.5, 0), V(0, 0, 1), 2.4),
    Part.Circle(V(157.5, -27.5, 0), V(0, 0, 1), 2.4),
], False)
sketch19.addConstraint([
    Sketcher.Constraint("Equal", 0, 1),
    Sketcher.Constraint("Equal", 1, 2),
    Sketcher.Constraint("Equal", 2, 3),
    Sketcher.Constraint("Symmetric", 0, 3, 2, 3, -1),
    Sketcher.Constraint("Symmetric", 1, 3, 3, 3, -1),
    Sketcher.Constraint("Horizontal", 0, 3, 1, 3),
    Sketcher.Constraint("DistanceX", 0, 3, 1, 3, 25.0),
    Sketcher.Constraint("DistanceY", 2, 3, 0, 3, 55.0),
    Sketcher.Constraint("Diameter", 0, 4.7625),
    Sketcher.Constraint("DistanceX", -1, 1, 0, 3, 132.5),
])
pad18 = body29.newObject("PartDesign::Pad", "Pad017")
pad18.Profile = sketch19
pad18.Length = 70
pad18.Reversed = True
doc.recompute()

body30 = doc.addObject("PartDesign::Body", "Body029")
body30.BaseFeature = body29
boolean16 = body5.newObject("PartDesign::Boolean", "Boolean015")
boolean16.Type = "Cut"
boolean16.addObjects([body30])
doc.recompute()

body31 = doc.addObject("PartDesign::Body", "Body030")
body31.BaseFeature = body29
boolean17 = body6.newObject("PartDesign::Boolean", "Boolean016")
boolean17.Type = "Cut"
boolean17.addObjects([body31])
doc.recompute()

boolean18 = body7.newObject("PartDesign::Boolean", "Boolean017")
boolean18.Type = "Cut"
boolean18.addObjects([body29])
body32 = doc.addObject("PartDesign::Body", "Body031")
body32.AllowCompound = True

sketch20 = body32.newObject("Sketcher::SketchObject", "Sketch019")
sketch20.AttachmentSupport = (doc.getObject("XZ_Plane031"), [""])
sketch20.MapMode = "FlatFace"
sketch20.AttachmentOffset = App.Placement(V(0, 0, -375), App.Rotation())
sketch20.addGeometry([
    Part.Circle(V(132.5, 27.5, 0), V(0, 0, 1), 2.4),
    Part.Circle(V(157.5, 27.5, 0), V(0, 0, 1), 2.4),
    Part.Circle(V(132.5, -27.5, 0), V(0, 0, 1), 2.4),
    Part.Circle(V(157.5, -27.5, 0), V(0, 0, 1), 2.4),
    Part.Circle(V(145, 0, 0), V(0, 0, 1), 2.4),
], False)
sketch20.addConstraint([
    Sketcher.Constraint("Equal", 0, 1),
    Sketcher.Constraint("Equal", 1, 2),
    Sketcher.Constraint("Equal", 2, 3),
    Sketcher.Constraint("Equal", 3, 4),
    Sketcher.Constraint("Symmetric", 0, 3, 2, 3, -1),
    Sketcher.Constraint("Symmetric", 1, 3, 3, 3, -1),
    Sketcher.Constraint("PointOnObject", 4, 3, -1),
    Sketcher.Constraint("Horizontal", 0, 3, 1, 3),
    Sketcher.Constraint("DistanceX", -1, 1, 4, 3, 145.0),
    Sketcher.Constraint("DistanceX", 0, 3, 1, 3, 25.0),
    Sketcher.Constraint("DistanceY", 2, 3, 0, 3, 55.0),
    Sketcher.Constraint("Diameter", 0, 4.7625),
    Sketcher.Constraint("DistanceX", -1, 1, 0, 3, 132.5),
])
pad19 = body32.newObject("PartDesign::Pad", "Pad018")
pad19.Profile = sketch20
pad19.Length = 70
doc.recompute()

body33 = doc.addObject("PartDesign::Body", "Body032")
body33.BaseFeature = body32
boolean19 = body6.newObject("PartDesign::Boolean", "Boolean018")
boolean19.Type = "Cut"
boolean19.addObjects([body33])
doc.recompute()

body34 = doc.addObject("PartDesign::Body", "Body033")
body34.BaseFeature = body32
boolean20 = body7.newObject("PartDesign::Boolean", "Boolean019")
boolean20.Type = "Cut"
boolean20.addObjects([body34])
doc.recompute()

boolean21 = body8.newObject("PartDesign::Boolean", "Boolean020")
boolean21.Type = "Cut"
boolean21.addObjects([body32])
mirroring.Visibility = False

doc.recompute()
